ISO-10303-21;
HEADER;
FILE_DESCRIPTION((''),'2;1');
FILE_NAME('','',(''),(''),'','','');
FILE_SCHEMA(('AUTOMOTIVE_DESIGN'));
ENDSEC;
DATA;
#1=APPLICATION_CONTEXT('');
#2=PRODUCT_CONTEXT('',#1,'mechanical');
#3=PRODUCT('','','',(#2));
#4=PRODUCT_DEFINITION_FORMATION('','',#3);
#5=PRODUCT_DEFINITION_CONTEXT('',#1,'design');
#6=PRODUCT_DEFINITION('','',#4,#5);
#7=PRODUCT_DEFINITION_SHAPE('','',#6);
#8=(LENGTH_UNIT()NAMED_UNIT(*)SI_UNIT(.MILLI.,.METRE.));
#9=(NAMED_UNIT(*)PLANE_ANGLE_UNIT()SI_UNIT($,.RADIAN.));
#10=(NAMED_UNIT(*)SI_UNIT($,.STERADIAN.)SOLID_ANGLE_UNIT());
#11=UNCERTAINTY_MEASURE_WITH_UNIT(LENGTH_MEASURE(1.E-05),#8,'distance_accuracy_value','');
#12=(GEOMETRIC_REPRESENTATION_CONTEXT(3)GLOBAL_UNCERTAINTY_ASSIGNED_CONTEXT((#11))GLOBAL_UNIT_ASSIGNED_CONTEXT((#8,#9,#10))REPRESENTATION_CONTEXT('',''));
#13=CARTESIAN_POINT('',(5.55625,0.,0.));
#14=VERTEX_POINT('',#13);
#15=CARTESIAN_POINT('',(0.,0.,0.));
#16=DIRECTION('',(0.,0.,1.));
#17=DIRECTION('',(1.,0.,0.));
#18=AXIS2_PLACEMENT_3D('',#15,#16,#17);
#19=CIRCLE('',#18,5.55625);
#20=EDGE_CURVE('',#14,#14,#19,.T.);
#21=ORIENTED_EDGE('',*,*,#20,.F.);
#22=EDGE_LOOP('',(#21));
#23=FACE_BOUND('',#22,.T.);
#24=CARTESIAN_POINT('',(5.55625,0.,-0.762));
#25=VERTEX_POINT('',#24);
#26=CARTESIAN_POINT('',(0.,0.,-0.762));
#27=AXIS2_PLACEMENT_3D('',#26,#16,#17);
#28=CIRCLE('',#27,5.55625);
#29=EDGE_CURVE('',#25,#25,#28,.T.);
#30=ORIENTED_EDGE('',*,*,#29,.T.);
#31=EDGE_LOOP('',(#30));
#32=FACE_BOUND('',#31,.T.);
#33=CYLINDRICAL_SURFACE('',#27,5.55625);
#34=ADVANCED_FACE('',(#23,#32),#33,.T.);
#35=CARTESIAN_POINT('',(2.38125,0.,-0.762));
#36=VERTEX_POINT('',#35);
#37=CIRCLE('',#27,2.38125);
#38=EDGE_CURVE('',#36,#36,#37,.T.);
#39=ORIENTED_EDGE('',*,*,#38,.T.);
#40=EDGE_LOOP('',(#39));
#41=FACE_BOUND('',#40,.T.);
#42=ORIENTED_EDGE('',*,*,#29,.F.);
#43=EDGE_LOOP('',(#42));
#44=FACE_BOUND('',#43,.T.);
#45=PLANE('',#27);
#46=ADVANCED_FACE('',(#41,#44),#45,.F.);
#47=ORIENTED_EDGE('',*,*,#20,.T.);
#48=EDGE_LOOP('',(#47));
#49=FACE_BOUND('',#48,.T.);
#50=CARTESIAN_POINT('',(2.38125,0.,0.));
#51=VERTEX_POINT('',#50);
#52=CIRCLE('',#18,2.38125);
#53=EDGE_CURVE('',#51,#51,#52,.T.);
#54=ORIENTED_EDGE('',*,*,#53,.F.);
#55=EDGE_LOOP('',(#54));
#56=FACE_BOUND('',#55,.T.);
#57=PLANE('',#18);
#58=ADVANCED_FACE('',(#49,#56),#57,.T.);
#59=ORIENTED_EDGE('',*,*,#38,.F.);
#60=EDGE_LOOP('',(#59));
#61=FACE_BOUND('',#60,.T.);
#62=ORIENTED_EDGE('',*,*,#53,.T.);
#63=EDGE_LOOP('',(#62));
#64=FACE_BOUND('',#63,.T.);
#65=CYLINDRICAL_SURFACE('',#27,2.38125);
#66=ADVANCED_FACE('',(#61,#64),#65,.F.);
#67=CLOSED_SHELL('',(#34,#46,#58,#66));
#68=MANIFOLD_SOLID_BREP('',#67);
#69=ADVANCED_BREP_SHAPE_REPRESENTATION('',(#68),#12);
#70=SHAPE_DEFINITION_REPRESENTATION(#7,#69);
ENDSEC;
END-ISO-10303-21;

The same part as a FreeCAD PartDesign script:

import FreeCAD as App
import Part
import Sketcher

V = App.Vector
Q = App.Units.Quantity

doc = App.newDocument("Part")
body = doc.addObject("PartDesign::Body", "Body")

# Sketch on XY plane
sketch1 = body.newObject("Sketcher::SketchObject", "Sketch")
sketch1.AttachmentSupport = (doc.getObject("XY_Plane"), [""])
sketch1.MapMode = "FlatFace"
sketch1.addGeometry([
    Part.Circle(V(0, 0, 0), V(0, 0, 1), 5.6),
    Part.Circle(V(0, 0, 0), V(0, 0, 1), 2.4),
], False)
sketch1.addConstraint([
    Sketcher.Constraint("Coincident", 0, 3, -1, 1),
    Sketcher.Constraint("Coincident", 1, 3, -1, 1),
    Sketcher.Constraint("Diameter", 0, Q("0.4375 in")),
    Sketcher.Constraint("Diameter", 1, Q("0.1875 in")),
])
pad1 = body.newObject("PartDesign::Pad", "Pad")
pad1.Profile = sketch1
pad1.Length = Q("0.03 in")
pad1.Reversed = True

doc.recompute()
